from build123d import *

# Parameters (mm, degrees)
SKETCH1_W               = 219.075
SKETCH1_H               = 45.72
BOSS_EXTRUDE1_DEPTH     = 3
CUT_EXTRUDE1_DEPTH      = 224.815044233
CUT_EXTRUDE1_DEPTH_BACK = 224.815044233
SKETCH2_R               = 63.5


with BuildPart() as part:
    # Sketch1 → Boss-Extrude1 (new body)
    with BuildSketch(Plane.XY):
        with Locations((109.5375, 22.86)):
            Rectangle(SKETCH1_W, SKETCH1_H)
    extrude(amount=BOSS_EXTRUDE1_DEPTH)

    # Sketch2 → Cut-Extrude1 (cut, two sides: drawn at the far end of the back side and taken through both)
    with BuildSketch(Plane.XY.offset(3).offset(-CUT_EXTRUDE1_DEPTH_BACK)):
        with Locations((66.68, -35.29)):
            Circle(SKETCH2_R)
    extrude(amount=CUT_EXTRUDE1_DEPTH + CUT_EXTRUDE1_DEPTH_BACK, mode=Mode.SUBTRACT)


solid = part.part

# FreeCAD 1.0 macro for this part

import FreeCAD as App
import Part
import Sketcher
from FreeCAD import Vector
Q = App.Units.Quantity


def add_polygon(sketch, points):
    """Adds a closed chain of lines whose ends are joined by coincident constraints."""
    first, n = sketch.GeometryCount, len(points)
    for a, b in zip(points, points[1:] + points[:1]):
        sketch.addGeometry(Part.LineSegment(App.Vector(*a, 0), App.Vector(*b, 0)), False)
    for i in range(n):
        sketch.addConstraint(Sketcher.Constraint("Coincident", first + i, 2, first + (i + 1) % n, 1))

doc = App.newDocument("Part")
body = doc.addObject("PartDesign::Body", "Body")

# Sketch on XY plane
sketch1 = body.newObject("Sketcher::SketchObject", "Sketch")
sketch1.AttachmentSupport = (doc.getObject("XY_Plane"), [""])
sketch1.MapMode = "FlatFace"
add_polygon(sketch1, [(0, 45.72), (0, 0), (219.075, 0), (219.075, 45.72)])  # lines 0-3
sketch1.addConstraint([
    Sketcher.Constraint("Vertical", 0),
    Sketcher.Constraint("Horizontal", 1),
    Sketcher.Constraint("Vertical", 2),
    Sketcher.Constraint("Horizontal", 3),
    Sketcher.Constraint("Coincident", 0, 2, -1, 1),
    Sketcher.Constraint("DistanceY", 0, 2, 0, 1, Q("1.8 in")),
    Sketcher.Constraint("DistanceX", 1, 1, 1, 2, Q("8.625 in")),
])
pad1 = body.newObject("PartDesign::Pad", "Pad")
pad1.Profile = sketch1
pad1.Length = 3

# Sketch on XY plane
sketch2 = body.newObject("Sketcher::SketchObject", "Sketch001")
sketch2.AttachmentSupport = (doc.getObject("XY_Plane"), [""])
sketch2.MapMode = "FlatFace"
sketch2.AttachmentOffset = App.Placement(Vector(0, 0, 3), App.Rotation())
sketch2.addGeometry(Part.Circle(Vector(66.68, -35.29, 0), Vector(0, 0, 1), 63.5), False)
sketch2.addConstraint([
    Sketcher.Constraint("Diameter", 0, Q("5 in")),
    Sketcher.Constraint("DistanceX", -1, 1, 0, 3, 66.68),
    Sketcher.Constraint("DistanceY", 0, 3, -1, 1, 35.29),
])
pocket1 = body.newObject("PartDesign::Pocket", "Pocket")
pocket1.Profile = sketch2
pocket1.Type = "ThroughAll"
pocket1.Midplane = True

doc.recompute()
